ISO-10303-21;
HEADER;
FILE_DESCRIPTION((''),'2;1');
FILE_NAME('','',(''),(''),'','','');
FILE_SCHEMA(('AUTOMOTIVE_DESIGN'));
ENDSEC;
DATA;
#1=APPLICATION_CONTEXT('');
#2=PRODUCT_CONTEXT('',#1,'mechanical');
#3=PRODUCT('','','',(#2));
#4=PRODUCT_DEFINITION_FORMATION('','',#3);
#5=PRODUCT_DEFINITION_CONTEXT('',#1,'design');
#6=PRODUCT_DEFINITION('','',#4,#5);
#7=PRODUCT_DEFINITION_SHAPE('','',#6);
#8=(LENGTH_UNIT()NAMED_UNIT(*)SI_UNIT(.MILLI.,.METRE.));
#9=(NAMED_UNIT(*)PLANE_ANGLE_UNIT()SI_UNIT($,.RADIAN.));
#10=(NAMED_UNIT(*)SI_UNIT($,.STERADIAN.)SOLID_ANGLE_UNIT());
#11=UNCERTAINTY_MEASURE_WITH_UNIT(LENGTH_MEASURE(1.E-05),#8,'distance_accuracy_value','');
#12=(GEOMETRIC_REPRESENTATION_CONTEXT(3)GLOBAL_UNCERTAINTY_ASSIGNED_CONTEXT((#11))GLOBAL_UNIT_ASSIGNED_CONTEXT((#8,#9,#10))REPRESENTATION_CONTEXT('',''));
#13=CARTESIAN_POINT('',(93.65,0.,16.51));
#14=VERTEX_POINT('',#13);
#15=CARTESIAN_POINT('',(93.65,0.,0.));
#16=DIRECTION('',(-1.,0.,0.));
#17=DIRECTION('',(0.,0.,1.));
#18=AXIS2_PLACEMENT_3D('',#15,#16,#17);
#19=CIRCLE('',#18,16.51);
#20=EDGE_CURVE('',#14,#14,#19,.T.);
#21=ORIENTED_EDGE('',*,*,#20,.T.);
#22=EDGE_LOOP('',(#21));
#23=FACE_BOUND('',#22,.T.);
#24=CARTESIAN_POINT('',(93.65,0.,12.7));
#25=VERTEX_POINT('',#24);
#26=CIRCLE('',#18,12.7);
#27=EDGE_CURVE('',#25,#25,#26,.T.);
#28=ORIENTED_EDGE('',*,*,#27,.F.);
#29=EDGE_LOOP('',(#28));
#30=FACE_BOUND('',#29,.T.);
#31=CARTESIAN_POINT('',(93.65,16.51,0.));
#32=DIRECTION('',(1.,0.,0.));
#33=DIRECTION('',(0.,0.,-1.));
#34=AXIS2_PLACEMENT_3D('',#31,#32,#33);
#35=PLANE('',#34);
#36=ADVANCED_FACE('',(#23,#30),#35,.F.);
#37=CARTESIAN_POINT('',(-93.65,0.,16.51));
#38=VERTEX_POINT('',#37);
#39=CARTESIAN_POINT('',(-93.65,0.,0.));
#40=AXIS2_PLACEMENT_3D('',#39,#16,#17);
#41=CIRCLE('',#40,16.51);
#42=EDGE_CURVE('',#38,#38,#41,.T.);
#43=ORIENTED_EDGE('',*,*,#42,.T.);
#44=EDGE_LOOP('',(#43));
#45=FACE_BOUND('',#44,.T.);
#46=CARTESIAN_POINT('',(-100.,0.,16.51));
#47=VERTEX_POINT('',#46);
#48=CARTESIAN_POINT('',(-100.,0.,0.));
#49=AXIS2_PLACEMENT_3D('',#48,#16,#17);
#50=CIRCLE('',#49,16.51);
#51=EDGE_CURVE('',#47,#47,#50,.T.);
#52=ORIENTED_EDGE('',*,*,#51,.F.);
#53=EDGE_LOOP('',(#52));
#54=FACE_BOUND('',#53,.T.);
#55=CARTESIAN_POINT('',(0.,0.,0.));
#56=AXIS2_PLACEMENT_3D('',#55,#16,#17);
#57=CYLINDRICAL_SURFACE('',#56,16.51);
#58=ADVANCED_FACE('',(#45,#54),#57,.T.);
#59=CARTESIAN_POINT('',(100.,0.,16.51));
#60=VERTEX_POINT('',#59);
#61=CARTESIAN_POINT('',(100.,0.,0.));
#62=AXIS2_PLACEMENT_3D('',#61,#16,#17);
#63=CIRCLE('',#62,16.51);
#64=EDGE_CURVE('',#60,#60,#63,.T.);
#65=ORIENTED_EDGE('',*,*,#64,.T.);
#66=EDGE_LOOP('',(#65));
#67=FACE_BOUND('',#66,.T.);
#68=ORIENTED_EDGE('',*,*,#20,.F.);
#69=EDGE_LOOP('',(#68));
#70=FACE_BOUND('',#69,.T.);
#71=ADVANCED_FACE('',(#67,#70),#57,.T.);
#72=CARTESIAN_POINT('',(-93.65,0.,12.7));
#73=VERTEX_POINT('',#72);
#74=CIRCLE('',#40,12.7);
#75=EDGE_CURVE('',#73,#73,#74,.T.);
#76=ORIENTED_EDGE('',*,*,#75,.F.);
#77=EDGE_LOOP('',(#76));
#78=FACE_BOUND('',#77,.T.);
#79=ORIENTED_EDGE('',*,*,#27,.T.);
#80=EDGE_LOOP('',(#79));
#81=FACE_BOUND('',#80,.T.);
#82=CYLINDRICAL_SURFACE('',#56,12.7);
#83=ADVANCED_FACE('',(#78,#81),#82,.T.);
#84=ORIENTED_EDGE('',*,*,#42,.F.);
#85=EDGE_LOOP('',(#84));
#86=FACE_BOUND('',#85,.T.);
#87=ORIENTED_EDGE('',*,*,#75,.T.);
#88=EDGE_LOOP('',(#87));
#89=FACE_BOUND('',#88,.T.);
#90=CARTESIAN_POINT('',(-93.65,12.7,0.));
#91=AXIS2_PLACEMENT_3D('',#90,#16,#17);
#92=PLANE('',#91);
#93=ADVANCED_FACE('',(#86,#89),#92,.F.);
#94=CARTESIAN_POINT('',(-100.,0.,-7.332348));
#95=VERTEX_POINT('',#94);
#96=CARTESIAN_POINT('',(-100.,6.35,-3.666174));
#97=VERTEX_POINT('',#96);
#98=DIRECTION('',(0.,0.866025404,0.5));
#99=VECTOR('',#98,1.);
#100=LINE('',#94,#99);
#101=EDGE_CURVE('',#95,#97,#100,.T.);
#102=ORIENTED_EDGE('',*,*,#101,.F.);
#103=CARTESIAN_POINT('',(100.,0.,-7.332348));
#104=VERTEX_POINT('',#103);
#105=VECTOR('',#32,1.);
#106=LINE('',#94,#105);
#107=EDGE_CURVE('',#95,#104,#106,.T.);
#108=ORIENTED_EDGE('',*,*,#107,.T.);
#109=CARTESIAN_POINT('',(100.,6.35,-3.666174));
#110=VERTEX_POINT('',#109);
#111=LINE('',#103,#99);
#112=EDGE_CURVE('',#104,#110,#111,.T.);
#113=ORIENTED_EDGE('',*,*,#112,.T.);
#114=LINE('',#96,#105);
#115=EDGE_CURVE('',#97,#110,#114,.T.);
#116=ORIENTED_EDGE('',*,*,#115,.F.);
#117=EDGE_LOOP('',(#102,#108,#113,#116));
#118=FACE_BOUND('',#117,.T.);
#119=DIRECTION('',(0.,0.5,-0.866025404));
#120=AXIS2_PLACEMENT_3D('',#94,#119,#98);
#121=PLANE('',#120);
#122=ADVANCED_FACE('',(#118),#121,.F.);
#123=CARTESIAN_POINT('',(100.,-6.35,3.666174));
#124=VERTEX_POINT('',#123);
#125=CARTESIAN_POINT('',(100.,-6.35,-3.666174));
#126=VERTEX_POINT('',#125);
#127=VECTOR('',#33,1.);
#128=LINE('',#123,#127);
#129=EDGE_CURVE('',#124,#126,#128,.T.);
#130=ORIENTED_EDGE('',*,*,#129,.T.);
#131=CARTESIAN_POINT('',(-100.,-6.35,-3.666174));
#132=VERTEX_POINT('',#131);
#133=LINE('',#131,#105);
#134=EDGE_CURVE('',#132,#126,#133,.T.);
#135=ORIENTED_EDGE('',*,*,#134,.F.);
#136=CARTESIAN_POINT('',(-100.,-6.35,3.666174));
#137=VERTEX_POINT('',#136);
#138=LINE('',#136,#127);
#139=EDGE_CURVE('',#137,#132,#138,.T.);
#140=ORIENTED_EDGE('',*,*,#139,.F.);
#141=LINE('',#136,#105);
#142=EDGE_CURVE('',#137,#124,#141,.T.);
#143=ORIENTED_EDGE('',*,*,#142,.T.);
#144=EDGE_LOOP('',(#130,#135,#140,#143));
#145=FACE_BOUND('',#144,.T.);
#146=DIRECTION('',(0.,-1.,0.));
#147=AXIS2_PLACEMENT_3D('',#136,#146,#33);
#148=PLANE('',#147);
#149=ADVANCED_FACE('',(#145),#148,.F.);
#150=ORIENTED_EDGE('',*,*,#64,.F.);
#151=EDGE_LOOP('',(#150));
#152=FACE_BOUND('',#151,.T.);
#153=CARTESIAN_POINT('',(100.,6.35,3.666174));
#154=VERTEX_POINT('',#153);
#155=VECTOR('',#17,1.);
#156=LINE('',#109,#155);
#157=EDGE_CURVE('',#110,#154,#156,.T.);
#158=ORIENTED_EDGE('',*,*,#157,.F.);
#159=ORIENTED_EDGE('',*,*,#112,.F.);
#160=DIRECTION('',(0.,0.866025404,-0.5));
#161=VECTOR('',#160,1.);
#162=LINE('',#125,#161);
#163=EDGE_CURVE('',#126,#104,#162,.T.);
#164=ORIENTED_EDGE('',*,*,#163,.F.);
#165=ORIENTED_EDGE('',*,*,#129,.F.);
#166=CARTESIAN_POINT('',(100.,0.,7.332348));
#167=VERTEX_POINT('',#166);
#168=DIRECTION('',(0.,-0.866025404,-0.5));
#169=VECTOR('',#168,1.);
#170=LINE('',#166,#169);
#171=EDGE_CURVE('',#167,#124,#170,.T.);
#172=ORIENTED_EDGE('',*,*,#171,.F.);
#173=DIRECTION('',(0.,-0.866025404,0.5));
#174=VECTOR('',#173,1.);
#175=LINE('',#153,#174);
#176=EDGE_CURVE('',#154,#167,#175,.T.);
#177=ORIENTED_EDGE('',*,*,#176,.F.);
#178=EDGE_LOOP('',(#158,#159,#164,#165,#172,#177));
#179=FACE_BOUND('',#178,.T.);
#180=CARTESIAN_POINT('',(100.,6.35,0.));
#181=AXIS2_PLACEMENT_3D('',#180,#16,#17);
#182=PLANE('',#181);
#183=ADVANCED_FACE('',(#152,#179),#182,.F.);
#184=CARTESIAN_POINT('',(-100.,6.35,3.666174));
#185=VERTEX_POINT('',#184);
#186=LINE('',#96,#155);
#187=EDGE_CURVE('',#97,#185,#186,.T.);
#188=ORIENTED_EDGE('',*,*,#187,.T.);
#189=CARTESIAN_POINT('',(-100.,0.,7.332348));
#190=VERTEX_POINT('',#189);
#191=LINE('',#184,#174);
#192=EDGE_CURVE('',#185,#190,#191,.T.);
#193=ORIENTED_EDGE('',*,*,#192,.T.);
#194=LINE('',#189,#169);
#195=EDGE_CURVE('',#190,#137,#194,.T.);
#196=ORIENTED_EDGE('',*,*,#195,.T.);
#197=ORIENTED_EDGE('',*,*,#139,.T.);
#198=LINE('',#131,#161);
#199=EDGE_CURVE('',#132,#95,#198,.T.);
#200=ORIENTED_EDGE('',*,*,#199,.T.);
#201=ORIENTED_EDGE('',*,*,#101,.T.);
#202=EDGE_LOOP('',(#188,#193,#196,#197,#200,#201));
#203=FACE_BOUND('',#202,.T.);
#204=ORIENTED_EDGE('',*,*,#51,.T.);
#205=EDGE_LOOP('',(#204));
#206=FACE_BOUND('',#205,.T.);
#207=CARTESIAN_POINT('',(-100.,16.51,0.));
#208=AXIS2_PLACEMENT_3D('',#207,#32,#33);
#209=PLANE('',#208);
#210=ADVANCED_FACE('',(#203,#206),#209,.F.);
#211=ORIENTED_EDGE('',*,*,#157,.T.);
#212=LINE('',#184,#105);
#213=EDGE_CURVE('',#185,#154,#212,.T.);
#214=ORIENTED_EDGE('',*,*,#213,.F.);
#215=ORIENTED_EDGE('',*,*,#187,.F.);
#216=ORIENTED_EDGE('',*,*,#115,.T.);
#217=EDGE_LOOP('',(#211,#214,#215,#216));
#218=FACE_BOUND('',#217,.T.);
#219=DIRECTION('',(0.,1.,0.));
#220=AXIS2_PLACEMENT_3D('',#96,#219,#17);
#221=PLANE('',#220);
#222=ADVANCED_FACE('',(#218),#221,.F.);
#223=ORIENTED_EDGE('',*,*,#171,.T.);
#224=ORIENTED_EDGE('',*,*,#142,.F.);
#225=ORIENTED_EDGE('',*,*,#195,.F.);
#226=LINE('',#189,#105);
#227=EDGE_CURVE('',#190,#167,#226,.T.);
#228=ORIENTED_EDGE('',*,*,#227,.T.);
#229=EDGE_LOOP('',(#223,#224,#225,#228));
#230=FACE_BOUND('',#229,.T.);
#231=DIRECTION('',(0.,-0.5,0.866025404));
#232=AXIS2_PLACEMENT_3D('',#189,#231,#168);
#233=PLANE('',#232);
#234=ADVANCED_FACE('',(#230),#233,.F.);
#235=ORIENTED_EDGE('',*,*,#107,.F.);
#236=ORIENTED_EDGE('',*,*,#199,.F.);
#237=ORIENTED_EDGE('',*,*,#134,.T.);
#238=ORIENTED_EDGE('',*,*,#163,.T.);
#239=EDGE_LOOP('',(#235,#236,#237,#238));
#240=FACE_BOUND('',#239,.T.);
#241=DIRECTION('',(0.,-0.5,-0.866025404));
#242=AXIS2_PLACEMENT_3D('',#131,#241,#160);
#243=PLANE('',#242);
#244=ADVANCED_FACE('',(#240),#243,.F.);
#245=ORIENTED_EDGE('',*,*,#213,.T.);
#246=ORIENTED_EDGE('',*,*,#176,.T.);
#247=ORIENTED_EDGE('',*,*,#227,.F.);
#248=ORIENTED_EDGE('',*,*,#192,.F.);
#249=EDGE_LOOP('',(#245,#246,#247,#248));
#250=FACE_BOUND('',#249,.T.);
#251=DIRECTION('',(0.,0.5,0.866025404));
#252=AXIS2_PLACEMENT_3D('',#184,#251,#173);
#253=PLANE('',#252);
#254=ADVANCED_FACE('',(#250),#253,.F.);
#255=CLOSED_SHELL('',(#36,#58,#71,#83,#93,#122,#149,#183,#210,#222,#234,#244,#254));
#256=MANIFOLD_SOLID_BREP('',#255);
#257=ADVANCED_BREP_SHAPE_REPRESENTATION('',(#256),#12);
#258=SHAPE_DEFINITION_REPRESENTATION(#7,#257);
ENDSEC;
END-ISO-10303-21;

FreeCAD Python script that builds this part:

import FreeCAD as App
import Part
import Sketcher
from FreeCAD import Vector
Q = App.Units.Quantity


def add_polygon(sketch, points):
    """Adds a closed chain of lines whose ends are joined by coincident constraints."""
    first, n = sketch.GeometryCount, len(points)
    for a, b in zip(points, points[1:] + points[:1]):
        sketch.addGeometry(Part.LineSegment(App.Vector(*a, 0), App.Vector(*b, 0)), False)
    for i in range(n):
        sketch.addConstraint(Sketcher.Constraint("Coincident", first + i, 2, first + (i + 1) % n, 1))

doc = App.newDocument("Part")
params = doc.addObject("Spreadsheet::Sheet", "Params")
for row, (alias, value) in enumerate([
    ("sketch1_width", "200 mm"),
    ("sketch1_width2", "187.3 mm"),
    ("sketch1_height", "10.16 mm"),
    ("sketch1_height2", "3.81 mm"),
    ("revolution_angle", "360 deg"),
], start=1):
    params.set(f"A{row}", alias)
    params.set(f"B{row}", "=" + value)
    params.setAlias(f"B{row}", alias)

body = doc.addObject("PartDesign::Body", "Body")

sketch1 = doc.addObject("Sketcher::SketchObject", "Sketch")
body.addObject(sketch1)
sketch1.AttachmentSupport = (doc.XY_Plane, [""])
sketch1.MapMode = "FlatFace"
add_polygon(sketch1, [(-100, 6.35), (100, 6.35), (100, 16.51), (93.65, 16.51), (93.65, 12.7), (-93.65, 12.7), (-93.65, 16.51), (-100, 16.51)])
sketch1.addConstraint([
    Sketcher.Constraint("Horizontal", 0),
    Sketcher.Constraint("Vertical", 1),
    Sketcher.Constraint("Horizontal", 2),
    Sketcher.Constraint("Vertical", 3),
    Sketcher.Constraint("Horizontal", 4),
    Sketcher.Constraint("Vertical", 5),
    Sketcher.Constraint("Horizontal", 6),
    Sketcher.Constraint("Vertical", 7),
    Sketcher.Constraint("Symmetric", 2, 2, 5, 2, -2),
    Sketcher.Constraint("Equal", 2, 6),
    Sketcher.Constraint("DistanceX", 0, 1, 0, 2, Q("200 mm")),
    Sketcher.Constraint("DistanceX", 4, 2, 4, 1, Q("187.3 mm")),
    Sketcher.Constraint("DistanceY", 1, 1, 1, 2, Q("10.16 mm")),
    Sketcher.Constraint("DistanceY", 3, 2, 3, 1, Q("3.81 mm")),
    Sketcher.Constraint("DistanceY", -1, 1, 3, 2, Q("12.7 mm")),
])
sketch1.setExpression("Constraints[18]", "Params.sketch1_width")
sketch1.setExpression("Constraints[19]", "Params.sketch1_width2")
sketch1.setExpression("Constraints[20]", "Params.sketch1_height")
sketch1.setExpression("Constraints[21]", "Params.sketch1_height2")
revolution = doc.addObject("PartDesign::Revolution", "Revolution")
body.addObject(revolution)
revolution.Profile = sketch1
revolution.ReferenceAxis = (sketch1, ["H_Axis"])
revolution.setExpression("Angle", "Params.revolution_angle")

sketch2 = doc.addObject("Sketcher::SketchObject", "Sketch001")
body.addObject(sketch2)
sketch2.AttachmentSupport = (doc.YZ_Plane, [""])
sketch2.MapMode = "FlatFace"
sketch2.AttachmentOffset = App.Placement(Vector(0, 0, 100), App.Rotation())
add_polygon(sketch2, [(6.35, -3.666174), (6.35, 3.666174), (0, 7.332348), (-6.35, 3.666174), (-6.35, -3.666174), (0, -7.332348)])
sketch2.addConstraint([
    Sketcher.Constraint("Vertical", 0),
    Sketcher.Constraint("Vertical", 3),
    Sketcher.Constraint("Symmetric", 0, 2, 3, 2, -1, 1),
    Sketcher.Constraint("Symmetric", 1, 2, 4, 2, -1, 1),
    Sketcher.Constraint("PointOnObject", 1, 2, -2),
    Sketcher.Constraint("Parallel", 2, 5),
    Sketcher.Constraint("Horizontal", 0, 2, 2, 2),
    Sketcher.Constraint("Angle", 1, Q("150 deg")),
    Sketcher.Constraint("DistanceX", 2, 2, 0, 2, Q("12.7 mm")),
    Sketcher.Constraint("DistanceY", 0, 1, 0, 2, Q("7.332348 mm")),
])
pocket1 = doc.addObject("PartDesign::Pocket", "Pocket")
body.addObject(pocket1)
pocket1.Profile = sketch2
pocket1.Type = "ThroughAll"

doc.recompute()
